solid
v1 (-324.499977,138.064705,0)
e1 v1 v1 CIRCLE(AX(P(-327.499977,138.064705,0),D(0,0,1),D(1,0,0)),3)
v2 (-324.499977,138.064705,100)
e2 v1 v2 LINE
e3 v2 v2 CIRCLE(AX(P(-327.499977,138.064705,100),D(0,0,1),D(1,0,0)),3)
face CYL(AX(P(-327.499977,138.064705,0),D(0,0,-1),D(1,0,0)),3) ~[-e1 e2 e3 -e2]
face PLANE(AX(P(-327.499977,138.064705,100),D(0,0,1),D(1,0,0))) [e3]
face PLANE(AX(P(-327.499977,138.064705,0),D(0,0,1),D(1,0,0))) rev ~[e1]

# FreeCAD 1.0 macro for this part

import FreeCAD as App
import Part
import Sketcher

V = App.Vector

doc = App.newDocument("Part")
params = doc.addObject("Spreadsheet::Sheet", "Params")
for row, (alias, value) in enumerate([
    ("sketch1_diameter", "6 mm"),
    ("pad1_length", "100 mm"),
], start=1):
    params.set(f"A{row}", alias)
    params.set(f"B{row}", "=" + value)
    params.setAlias(f"B{row}", alias)

body = doc.addObject("PartDesign::Body", "Body")

# Sketch on XY plane
sketch1 = body.newObject("Sketcher::SketchObject", "Sketch")
sketch1.AttachmentSupport = (doc.getObject("XY_Plane"), [""])
sketch1.MapMode = "FlatFace"
sketch1.addGeometry(Part.Circle(V(-327.5, 138.1, 0), V(0, 0, 1), 3), False)
sketch1.addConstraint([
    Sketcher.Constraint("Diameter", 0, 6.0),
    Sketcher.Constraint("DistanceX", 0, 3, -1, 1, 327.499977),
    Sketcher.Constraint("DistanceY", -1, 1, 0, 3, 138.064705),
])
sketch1.setExpression("Constraints[0]", "Params.sketch1_diameter")
pad1 = body.newObject("PartDesign::Pad", "Pad")
pad1.Profile = sketch1
pad1.setExpression("Length", "Params.pad1_length")

doc.recompute()
